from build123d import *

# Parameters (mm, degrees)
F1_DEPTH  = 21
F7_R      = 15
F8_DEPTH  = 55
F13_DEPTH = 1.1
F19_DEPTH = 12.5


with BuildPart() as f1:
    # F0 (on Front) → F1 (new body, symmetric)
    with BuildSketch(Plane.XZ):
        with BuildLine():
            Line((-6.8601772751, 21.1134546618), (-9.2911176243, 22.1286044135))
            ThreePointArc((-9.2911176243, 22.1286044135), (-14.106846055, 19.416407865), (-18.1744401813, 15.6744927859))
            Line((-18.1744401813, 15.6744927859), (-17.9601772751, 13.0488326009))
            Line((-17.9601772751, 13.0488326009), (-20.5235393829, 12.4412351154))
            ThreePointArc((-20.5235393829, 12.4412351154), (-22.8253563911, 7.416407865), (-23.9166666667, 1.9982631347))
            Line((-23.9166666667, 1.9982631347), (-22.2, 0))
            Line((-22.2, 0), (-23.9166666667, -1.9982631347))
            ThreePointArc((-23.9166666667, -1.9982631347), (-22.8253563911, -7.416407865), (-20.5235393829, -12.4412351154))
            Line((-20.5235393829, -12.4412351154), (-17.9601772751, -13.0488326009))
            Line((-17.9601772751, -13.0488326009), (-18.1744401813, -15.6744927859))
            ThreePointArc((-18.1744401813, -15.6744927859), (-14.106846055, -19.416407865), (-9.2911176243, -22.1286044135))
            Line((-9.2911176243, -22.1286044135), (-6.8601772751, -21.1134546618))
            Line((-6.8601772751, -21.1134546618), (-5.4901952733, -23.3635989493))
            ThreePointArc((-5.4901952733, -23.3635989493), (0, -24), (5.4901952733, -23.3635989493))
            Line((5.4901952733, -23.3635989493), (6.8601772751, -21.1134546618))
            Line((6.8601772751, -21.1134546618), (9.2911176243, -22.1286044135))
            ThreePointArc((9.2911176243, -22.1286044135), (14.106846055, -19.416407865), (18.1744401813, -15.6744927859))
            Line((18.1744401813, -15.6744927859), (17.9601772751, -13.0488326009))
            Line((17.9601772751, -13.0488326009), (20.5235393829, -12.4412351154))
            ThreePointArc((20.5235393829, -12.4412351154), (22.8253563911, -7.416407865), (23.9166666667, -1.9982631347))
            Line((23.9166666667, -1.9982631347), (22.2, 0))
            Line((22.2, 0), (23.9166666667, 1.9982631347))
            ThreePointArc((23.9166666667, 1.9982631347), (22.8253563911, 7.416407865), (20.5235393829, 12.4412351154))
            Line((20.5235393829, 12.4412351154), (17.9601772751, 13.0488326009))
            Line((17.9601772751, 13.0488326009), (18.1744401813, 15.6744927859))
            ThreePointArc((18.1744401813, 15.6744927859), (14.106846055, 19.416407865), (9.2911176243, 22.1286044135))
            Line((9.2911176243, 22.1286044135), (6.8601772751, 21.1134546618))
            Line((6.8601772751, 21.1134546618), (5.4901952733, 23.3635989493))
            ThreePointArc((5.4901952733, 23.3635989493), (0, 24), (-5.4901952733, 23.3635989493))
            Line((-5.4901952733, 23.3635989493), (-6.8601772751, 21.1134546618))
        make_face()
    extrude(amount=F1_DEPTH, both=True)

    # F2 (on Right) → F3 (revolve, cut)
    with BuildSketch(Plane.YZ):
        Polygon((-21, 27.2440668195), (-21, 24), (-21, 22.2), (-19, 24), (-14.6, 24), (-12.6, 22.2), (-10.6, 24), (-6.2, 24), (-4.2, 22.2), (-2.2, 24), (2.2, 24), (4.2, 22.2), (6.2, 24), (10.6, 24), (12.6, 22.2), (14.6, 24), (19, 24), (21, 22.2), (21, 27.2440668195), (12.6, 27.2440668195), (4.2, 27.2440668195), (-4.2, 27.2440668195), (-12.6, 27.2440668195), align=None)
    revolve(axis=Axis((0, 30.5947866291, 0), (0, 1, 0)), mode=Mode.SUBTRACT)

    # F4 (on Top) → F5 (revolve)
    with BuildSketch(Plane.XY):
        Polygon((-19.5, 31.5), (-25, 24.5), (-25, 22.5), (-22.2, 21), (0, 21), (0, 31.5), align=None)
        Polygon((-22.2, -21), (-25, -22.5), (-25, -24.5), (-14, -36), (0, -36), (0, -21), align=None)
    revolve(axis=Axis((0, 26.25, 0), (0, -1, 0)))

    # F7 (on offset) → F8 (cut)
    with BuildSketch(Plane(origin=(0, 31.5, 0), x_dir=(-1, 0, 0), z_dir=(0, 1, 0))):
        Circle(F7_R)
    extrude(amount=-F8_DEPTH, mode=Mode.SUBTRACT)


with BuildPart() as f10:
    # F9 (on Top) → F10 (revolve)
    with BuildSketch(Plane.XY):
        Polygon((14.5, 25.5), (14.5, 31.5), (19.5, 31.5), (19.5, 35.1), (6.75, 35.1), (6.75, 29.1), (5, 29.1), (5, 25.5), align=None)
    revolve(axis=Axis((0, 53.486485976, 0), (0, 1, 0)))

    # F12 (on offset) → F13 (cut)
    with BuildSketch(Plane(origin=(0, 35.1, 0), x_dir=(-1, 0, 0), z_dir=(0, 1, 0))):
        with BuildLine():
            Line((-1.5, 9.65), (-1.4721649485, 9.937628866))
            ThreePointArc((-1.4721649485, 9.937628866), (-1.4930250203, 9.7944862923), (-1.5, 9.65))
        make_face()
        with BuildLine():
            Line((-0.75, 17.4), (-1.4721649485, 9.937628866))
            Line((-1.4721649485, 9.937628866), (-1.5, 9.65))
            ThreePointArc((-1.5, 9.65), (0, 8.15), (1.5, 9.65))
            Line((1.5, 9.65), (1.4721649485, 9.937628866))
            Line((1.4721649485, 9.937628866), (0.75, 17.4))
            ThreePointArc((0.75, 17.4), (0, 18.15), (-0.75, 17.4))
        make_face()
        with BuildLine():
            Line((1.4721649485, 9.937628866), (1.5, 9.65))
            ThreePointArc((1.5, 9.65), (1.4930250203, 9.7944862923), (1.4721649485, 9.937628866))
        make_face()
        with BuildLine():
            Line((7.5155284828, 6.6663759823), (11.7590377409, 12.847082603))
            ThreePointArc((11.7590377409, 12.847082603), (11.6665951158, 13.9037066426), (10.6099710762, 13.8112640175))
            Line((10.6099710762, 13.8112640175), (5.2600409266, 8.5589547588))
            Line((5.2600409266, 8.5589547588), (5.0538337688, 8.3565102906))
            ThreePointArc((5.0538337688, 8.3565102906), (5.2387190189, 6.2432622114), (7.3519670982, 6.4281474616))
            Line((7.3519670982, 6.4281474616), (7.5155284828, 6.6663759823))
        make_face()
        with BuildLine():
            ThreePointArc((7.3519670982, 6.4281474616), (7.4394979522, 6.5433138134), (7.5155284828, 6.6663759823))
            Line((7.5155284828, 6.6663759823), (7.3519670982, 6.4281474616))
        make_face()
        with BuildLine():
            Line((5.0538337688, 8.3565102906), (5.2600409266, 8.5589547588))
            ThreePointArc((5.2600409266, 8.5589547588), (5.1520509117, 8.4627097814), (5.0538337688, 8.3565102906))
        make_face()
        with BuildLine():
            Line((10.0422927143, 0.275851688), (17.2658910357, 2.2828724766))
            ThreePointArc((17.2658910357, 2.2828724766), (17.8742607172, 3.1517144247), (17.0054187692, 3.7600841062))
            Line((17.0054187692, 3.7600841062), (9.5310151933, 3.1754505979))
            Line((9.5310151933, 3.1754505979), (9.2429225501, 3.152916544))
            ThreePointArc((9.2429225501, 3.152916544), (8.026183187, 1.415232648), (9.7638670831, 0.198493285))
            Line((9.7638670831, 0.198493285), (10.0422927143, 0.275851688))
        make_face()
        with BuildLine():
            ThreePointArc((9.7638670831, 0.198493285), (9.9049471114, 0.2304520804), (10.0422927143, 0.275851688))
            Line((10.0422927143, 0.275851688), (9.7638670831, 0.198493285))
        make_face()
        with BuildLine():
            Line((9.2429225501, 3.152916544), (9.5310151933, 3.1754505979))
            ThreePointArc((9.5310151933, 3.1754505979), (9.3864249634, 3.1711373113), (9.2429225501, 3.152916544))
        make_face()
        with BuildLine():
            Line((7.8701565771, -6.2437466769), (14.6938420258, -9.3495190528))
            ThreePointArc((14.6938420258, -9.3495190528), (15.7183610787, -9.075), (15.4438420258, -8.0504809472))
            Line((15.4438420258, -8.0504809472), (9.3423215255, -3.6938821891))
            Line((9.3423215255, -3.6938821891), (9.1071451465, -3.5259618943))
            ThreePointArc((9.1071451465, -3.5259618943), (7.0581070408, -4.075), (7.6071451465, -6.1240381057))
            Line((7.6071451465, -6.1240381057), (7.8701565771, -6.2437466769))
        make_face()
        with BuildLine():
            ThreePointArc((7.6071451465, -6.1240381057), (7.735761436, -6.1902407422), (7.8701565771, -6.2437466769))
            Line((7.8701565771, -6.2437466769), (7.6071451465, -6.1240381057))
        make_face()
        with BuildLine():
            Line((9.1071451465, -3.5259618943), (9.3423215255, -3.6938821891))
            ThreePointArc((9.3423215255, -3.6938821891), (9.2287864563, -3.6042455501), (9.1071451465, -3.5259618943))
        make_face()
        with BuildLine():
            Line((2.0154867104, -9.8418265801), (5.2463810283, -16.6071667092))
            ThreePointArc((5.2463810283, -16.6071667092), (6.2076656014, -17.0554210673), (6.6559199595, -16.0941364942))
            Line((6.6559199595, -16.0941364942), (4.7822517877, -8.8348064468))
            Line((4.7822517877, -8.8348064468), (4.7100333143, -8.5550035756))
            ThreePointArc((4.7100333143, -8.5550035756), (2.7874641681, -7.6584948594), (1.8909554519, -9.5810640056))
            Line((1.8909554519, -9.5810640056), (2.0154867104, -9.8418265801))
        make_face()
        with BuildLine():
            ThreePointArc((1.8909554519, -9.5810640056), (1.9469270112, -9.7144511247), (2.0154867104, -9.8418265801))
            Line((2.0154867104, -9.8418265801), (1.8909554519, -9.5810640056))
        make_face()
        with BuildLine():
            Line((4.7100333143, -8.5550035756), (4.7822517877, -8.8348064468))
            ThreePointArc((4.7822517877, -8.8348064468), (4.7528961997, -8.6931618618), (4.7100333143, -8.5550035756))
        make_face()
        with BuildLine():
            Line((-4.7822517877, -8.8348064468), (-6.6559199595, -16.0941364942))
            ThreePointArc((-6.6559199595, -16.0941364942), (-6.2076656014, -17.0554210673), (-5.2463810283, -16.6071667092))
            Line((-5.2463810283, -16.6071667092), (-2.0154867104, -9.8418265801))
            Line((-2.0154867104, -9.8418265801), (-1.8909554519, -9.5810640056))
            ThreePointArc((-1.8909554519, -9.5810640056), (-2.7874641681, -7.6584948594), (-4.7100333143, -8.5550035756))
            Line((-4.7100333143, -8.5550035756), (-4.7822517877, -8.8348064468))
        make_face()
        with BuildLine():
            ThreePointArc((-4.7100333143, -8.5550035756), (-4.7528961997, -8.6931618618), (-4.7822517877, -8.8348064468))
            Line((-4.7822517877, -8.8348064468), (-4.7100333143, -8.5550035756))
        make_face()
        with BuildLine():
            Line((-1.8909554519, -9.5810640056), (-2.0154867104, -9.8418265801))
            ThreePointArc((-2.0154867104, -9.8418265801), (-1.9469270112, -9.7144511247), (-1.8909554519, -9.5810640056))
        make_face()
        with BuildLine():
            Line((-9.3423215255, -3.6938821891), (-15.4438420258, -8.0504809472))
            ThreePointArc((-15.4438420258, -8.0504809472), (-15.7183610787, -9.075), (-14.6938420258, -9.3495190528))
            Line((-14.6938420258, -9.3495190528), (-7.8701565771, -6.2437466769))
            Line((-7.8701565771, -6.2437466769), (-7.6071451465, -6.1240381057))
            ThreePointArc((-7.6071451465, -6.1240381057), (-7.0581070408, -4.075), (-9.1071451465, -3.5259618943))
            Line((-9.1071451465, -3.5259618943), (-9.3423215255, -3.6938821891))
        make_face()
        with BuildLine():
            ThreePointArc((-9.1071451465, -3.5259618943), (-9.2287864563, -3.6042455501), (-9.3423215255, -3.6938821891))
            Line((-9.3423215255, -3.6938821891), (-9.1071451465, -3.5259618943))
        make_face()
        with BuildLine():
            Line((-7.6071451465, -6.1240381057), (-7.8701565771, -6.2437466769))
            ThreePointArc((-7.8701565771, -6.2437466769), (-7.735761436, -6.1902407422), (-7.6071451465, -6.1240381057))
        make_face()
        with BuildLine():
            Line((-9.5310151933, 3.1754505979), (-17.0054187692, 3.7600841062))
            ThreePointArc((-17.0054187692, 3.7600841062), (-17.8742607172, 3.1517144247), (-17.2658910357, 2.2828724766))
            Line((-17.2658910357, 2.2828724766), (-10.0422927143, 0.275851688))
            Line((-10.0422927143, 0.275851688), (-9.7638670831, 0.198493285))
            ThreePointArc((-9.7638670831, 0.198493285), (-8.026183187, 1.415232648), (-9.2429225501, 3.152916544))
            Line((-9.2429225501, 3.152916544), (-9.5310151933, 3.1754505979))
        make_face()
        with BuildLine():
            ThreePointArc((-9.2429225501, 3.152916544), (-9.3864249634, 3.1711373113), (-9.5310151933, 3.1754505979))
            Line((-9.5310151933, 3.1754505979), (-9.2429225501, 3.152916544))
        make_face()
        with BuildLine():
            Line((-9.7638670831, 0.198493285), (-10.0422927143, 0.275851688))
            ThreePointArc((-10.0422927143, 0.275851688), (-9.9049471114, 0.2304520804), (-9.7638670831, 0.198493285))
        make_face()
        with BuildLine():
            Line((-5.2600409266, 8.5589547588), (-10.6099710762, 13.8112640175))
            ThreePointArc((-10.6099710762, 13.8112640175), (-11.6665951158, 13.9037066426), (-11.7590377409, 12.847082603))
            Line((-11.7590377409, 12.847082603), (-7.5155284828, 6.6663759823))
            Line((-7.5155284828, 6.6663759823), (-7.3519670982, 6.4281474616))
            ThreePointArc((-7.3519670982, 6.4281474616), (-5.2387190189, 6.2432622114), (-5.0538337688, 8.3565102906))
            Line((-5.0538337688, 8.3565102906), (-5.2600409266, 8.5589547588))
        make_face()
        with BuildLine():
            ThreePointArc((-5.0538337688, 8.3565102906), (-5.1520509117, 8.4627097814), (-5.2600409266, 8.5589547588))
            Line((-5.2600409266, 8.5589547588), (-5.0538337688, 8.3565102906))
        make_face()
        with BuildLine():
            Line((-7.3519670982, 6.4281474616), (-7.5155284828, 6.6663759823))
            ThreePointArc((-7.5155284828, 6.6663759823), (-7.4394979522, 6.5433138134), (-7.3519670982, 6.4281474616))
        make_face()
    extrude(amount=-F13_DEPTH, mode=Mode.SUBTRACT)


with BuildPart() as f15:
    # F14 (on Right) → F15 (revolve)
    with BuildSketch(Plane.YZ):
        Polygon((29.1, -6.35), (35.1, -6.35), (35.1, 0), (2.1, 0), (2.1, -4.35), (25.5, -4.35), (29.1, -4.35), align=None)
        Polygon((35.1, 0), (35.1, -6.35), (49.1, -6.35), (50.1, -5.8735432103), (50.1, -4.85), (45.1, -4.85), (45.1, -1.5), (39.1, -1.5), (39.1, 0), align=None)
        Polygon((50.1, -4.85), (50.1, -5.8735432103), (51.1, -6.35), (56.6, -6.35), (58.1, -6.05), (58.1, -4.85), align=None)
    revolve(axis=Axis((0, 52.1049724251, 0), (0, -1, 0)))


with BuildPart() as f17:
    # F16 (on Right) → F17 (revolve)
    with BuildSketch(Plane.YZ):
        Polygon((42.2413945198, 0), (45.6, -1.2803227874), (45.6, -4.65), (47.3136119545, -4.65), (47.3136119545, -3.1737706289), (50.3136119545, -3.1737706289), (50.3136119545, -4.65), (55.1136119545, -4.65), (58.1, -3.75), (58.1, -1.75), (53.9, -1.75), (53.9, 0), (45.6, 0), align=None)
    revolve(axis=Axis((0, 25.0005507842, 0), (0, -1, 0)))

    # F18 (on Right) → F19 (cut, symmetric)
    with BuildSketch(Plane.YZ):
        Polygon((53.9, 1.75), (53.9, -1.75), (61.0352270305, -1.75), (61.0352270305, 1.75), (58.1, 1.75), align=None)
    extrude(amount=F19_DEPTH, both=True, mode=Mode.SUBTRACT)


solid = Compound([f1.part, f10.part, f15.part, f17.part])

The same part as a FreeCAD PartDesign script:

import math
import FreeCAD as App
import Part
import Sketcher

V = App.Vector


def add_polygon(sketch, points):
    """Adds a closed chain of lines whose ends are joined by coincident constraints."""
    first, n = sketch.GeometryCount, len(points)
    for a, b in zip(points, points[1:] + points[:1]):
        sketch.addGeometry(Part.LineSegment(App.Vector(*a, 0), App.Vector(*b, 0)), False)
    for i in range(n):
        sketch.addConstraint(Sketcher.Constraint("Coincident", first + i, 2, first + (i + 1) % n, 1))

doc = App.newDocument("Part")
body = doc.addObject("PartDesign::Body", "Body")

# Sketch on XZ plane
sketch1 = doc.addObject("Sketcher::SketchObject", "Sketch")
body.addObject(sketch1)
sketch1.AttachmentSupport = (doc.XZ_Plane, [""])
sketch1.MapMode = "FlatFace"
sketch1.addGeometry([
    Part.LineSegment(V(-6.860177, 21.113455, 0), V(-9.291118, 22.128604, 0)),  # 0
    Part.ArcOfCircle(Part.Circle(V(0, 0, 0), V(0, 0, 1), 24), math.radians(112.776031), math.radians(139.223969)),  # 1
    Part.LineSegment(V(-18.17444, 15.674493, 0), V(-17.960177, 13.048833, 0)),  # 2
    Part.LineSegment(V(-17.960177, 13.048833, 0), V(-20.523539, 12.441235, 0)),  # 3
    Part.ArcOfCircle(Part.Circle(V(0, 0, 0), V(0, 0, 1), 24), math.radians(148.776031), math.radians(175.223969)),  # 4
    Part.LineSegment(V(-23.916667, 1.998263, 0), V(-22.2, 0, 0)),  # 5
    Part.LineSegment(V(-22.2, 0, 0), V(-23.916667, -1.998263, 0)),  # 6
    Part.ArcOfCircle(Part.Circle(V(0, 0, 0), V(0, 0, 1), 24), math.radians(-175.223969), math.radians(-148.776031)),  # 7
    Part.LineSegment(V(-20.523539, -12.441235, 0), V(-17.960177, -13.048833, 0)),  # 8
    Part.LineSegment(V(-17.960177, -13.048833, 0), V(-18.17444, -15.674493, 0)),  # 9
    Part.ArcOfCircle(Part.Circle(V(0, 0, 0), V(0, 0, 1), 24), math.radians(-139.223969), math.radians(-112.776031)),  # 10
    Part.LineSegment(V(-9.291118, -22.128604, 0), V(-6.860177, -21.113455, 0)),  # 11
    Part.LineSegment(V(-6.860177, -21.113455, 0), V(-5.490195, -23.363599, 0)),  # 12
    Part.ArcOfCircle(Part.Circle(V(0, 0, 0), V(0, 0, 1), 24), math.radians(-103.223969), math.radians(-76.776031)),  # 13
    Part.LineSegment(V(5.490195, -23.363599, 0), V(6.860177, -21.113455, 0)),  # 14
    Part.LineSegment(V(6.860177, -21.113455, 0), V(9.291118, -22.128604, 0)),  # 15
    Part.ArcOfCircle(Part.Circle(V(0, 0, 0), V(0, 0, 1), 24), math.radians(-67.223969), math.radians(-40.776031)),  # 16
    Part.LineSegment(V(18.17444, -15.674493, 0), V(17.960177, -13.048833, 0)),  # 17
    Part.LineSegment(V(17.960177, -13.048833, 0), V(20.523539, -12.441235, 0)),  # 18
    Part.ArcOfCircle(Part.Circle(V(0, 0, 0), V(0, 0, 1), 24), math.radians(-31.223969), math.radians(-4.776031)),  # 19
    Part.LineSegment(V(23.916667, -1.998263, 0), V(22.2, 0, 0)),  # 20
    Part.LineSegment(V(22.2, 0, 0), V(23.916667, 1.998263, 0)),  # 21
    Part.ArcOfCircle(Part.Circle(V(0, 0, 0), V(0, 0, 1), 24), math.radians(4.776031), math.radians(31.223969)),  # 22
    Part.LineSegment(V(20.523539, 12.441235, 0), V(17.960177, 13.048833, 0)),  # 23
    Part.LineSegment(V(17.960177, 13.048833, 0), V(18.17444, 15.674493, 0)),  # 24
    Part.ArcOfCircle(Part.Circle(V(0, 0, 0), V(0, 0, 1), 24), math.radians(40.776031), math.radians(67.223969)),  # 25
    Part.LineSegment(V(9.291118, 22.128604, 0), V(6.860177, 21.113455, 0)),  # 26
    Part.LineSegment(V(6.860177, 21.113455, 0), V(5.490195, 23.363599, 0)),  # 27
    Part.ArcOfCircle(Part.Circle(V(0, 0, 0), V(0, 0, 1), 24), math.radians(76.776031), math.radians(103.223969)),  # 28
    Part.LineSegment(V(-5.490195, 23.363599, 0), V(-6.860177, 21.113455, 0)),  # 29
], False)
sketch1.addConstraint([
    Sketcher.Constraint("Coincident", 0, 2, 1, 1),
    Sketcher.Constraint("Coincident", 1, 2, 2, 1),
    Sketcher.Constraint("Coincident", 2, 2, 3, 1),
    Sketcher.Constraint("Coincident", 3, 2, 4, 1),
    Sketcher.Constraint("Coincident", 4, 2, 5, 1),
    Sketcher.Constraint("Coincident", 5, 2, 6, 1),
    Sketcher.Constraint("Coincident", 6, 2, 7, 1),
    Sketcher.Constraint("Coincident", 7, 2, 8, 1),
    Sketcher.Constraint("Coincident", 8, 2, 9, 1),
    Sketcher.Constraint("Coincident", 9, 2, 10, 1),
    Sketcher.Constraint("Coincident", 10, 2, 11, 1),
    Sketcher.Constraint("Coincident", 11, 2, 12, 1),
    Sketcher.Constraint("Coincident", 12, 2, 13, 1),
    Sketcher.Constraint("Coincident", 13, 2, 14, 1),
    Sketcher.Constraint("Coincident", 14, 2, 15, 1),
    Sketcher.Constraint("Coincident", 15, 2, 16, 1),
    Sketcher.Constraint("Coincident", 16, 2, 17, 1),
    Sketcher.Constraint("Coincident", 17, 2, 18, 1),
    Sketcher.Constraint("Coincident", 18, 2, 19, 1),
    Sketcher.Constraint("Coincident", 19, 2, 20, 1),
    Sketcher.Constraint("Coincident", 20, 2, 21, 1),
    Sketcher.Constraint("Coincident", 21, 2, 22, 1),
    Sketcher.Constraint("Coincident", 22, 2, 23, 1),
    Sketcher.Constraint("Coincident", 23, 2, 24, 1),
    Sketcher.Constraint("Coincident", 24, 2, 25, 1),
    Sketcher.Constraint("Coincident", 25, 2, 26, 1),
    Sketcher.Constraint("Coincident", 26, 2, 27, 1),
    Sketcher.Constraint("Coincident", 27, 2, 28, 1),
    Sketcher.Constraint("Coincident", 28, 2, 29, 1),
    Sketcher.Constraint("Coincident", 29, 2, 0, 1),
    Sketcher.Constraint("Coincident", 1, 3, -1, 1),
    Sketcher.Constraint("Coincident", 4, 3, -1, 1),
    Sketcher.Constraint("Coincident", 7, 3, -1, 1),
    Sketcher.Constraint("Coincident", 10, 3, -1, 1),
    Sketcher.Constraint("Coincident", 13, 3, -1, 1),
    Sketcher.Constraint("Coincident", 16, 3, -1, 1),
    Sketcher.Constraint("Coincident", 19, 3, -1, 1),
    Sketcher.Constraint("Coincident", 22, 3, -1, 1),
    Sketcher.Constraint("Coincident", 25, 3, -1, 1),
    Sketcher.Constraint("Coincident", 28, 3, -1, 1),
    Sketcher.Constraint("Equal", 1, 4),
    Sketcher.Constraint("Equal", 4, 7),
    Sketcher.Constraint("Equal", 7, 10),
    Sketcher.Constraint("Equal", 10, 13),
    Sketcher.Constraint("Equal", 13, 16),
    Sketcher.Constraint("Equal", 16, 19),
    Sketcher.Constraint("Equal", 19, 22),
    Sketcher.Constraint("Equal", 22, 25),
    Sketcher.Constraint("Equal", 25, 28),
    Sketcher.Constraint("Symmetric", 2, 2, 17, 2, -1, 1),
    Sketcher.Constraint("Symmetric", 5, 2, 20, 2, -1, 1),
    Sketcher.Constraint("Symmetric", 8, 2, 23, 2, -1, 1),
    Sketcher.Constraint("Symmetric", 11, 2, 26, 2, -1, 1),
    Sketcher.Constraint("Symmetric", 14, 2, 29, 2, -1, 1),
    Sketcher.Constraint("Symmetric", 11, 2, 14, 2, -2),
    Sketcher.Constraint("Symmetric", 8, 2, 17, 2, -2),
    Sketcher.Constraint("PointOnObject", 5, 2, -1),
    Sketcher.Constraint("Parallel", 0, 15),
    Sketcher.Constraint("Parallel", 2, 17),
    Sketcher.Constraint("Parallel", 3, 18),
    Sketcher.Constraint("Parallel", 5, 20),
    Sketcher.Constraint("Parallel", 6, 21),
    Sketcher.Constraint("Parallel", 8, 23),
    Sketcher.Constraint("Parallel", 9, 24),
    Sketcher.Constraint("Parallel", 11, 26),
    Sketcher.Constraint("Parallel", 12, 27),
    Sketcher.Constraint("Parallel", 14, 29),
    Sketcher.Constraint("Horizontal", 12, 2, 13, 2),
    Sketcher.Constraint("Horizontal", 10, 2, 15, 2),
    Sketcher.Constraint("Horizontal", 9, 2, 16, 2),
    Sketcher.Constraint("Horizontal", 7, 2, 18, 2),
    Sketcher.Constraint("Horizontal", 6, 2, 19, 2),
    Sketcher.Constraint("Equal", 0, 2),
    Sketcher.Constraint("Equal", 2, 3),
    Sketcher.Constraint("Equal", 3, 5),
    Sketcher.Constraint("Equal", 11, 12),
    Sketcher.Constraint("Radius", 1, 24.0),
    Sketcher.Constraint("DistanceX", 5, 2, -1, 1, 22.2),
    Sketcher.Constraint("DistanceX", 8, 2, 11, 2, 11.1),
    Sketcher.Constraint("DistanceY", 12, 2, -1, 1, 23.363599),
    Sketcher.Constraint("DistanceX", 3, 2, 1, 2, 2.349099),
    Sketcher.Constraint("DistanceY", 6, 2, 3, 2, 14.439498),
    Sketcher.Constraint("DistanceX", 1, 2, -1, 1, 18.17444),
])
pad1 = doc.addObject("PartDesign::Pad", "Pad")
body.addObject(pad1)
pad1.Profile = sketch1
pad1.Length = 42
pad1.Midplane = True

# Sketch on YZ plane
sketch2 = doc.addObject("Sketcher::SketchObject", "Sketch001")
body.addObject(sketch2)
sketch2.AttachmentSupport = (doc.YZ_Plane, [""])
sketch2.MapMode = "FlatFace"
add_polygon(sketch2, [(-21, 27.244067), (-21, 22.2), (-19, 24), (-14.6, 24), (-12.6, 22.2), (-10.6, 24), (-6.2, 24), (-4.2, 22.2), (-2.2, 24), (2.2, 24), (4.2, 22.2), (6.2, 24), (10.6, 24), (12.6, 22.2), (14.6, 24), (19, 24), (21, 22.2), (21, 27.244067)])  # lines 0-17
sketch2.addConstraint([
    Sketcher.Constraint("Vertical", 0),
    Sketcher.Constraint("Horizontal", 2),
    Sketcher.Constraint("Horizontal", 5),
    Sketcher.Constraint("Horizontal", 8),
    Sketcher.Constraint("Horizontal", 11),
    Sketcher.Constraint("Horizontal", 14),
    Sketcher.Constraint("Vertical", 16),
    Sketcher.Constraint("Horizontal", 17),
    Sketcher.Constraint("Symmetric", 6, 2, 9, 2, -2),
    Sketcher.Constraint("Symmetric", 5, 2, 10, 2, -2),
    Sketcher.Constraint("Symmetric", 3, 2, 12, 2, -2),
    Sketcher.Constraint("Symmetric", 2, 2, 13, 2, -2),
    Sketcher.Constraint("Symmetric", 0, 2, 15, 2, -2),
    Sketcher.Constraint("Parallel", 1, 4),
    Sketcher.Constraint("Parallel", 3, 6),
    Sketcher.Constraint("Parallel", 4, 7),
    Sketcher.Constraint("Parallel", 6, 9),
    Sketcher.Constraint("Parallel", 7, 10),
    Sketcher.Constraint("Parallel", 9, 12),
    Sketcher.Constraint("Parallel", 12, 15),
    Sketcher.Constraint("Horizontal", 0, 2, 3, 2),
    Sketcher.Constraint("Horizontal", 2, 2, 4, 2),
    Sketcher.Constraint("Horizontal", 3, 2, 6, 2),
    Sketcher.Constraint("Horizontal", 5, 2, 7, 2),
    Sketcher.Constraint("Equal", 2, 5),
    Sketcher.Constraint("Equal", 5, 8),
    Sketcher.Constraint("DistanceX", 17, 2, 17, 1, 42.0),
    Sketcher.Constraint("DistanceX", 2, 1, 2, 2, 4.4),
    Sketcher.Constraint("DistanceY", -1, 1, 1, 2, 24.0),
    Sketcher.Constraint("DistanceY", -1, 1, 0, 2, 22.2),
    Sketcher.Constraint("DistanceY", 0, 2, 0, 1, 5.044067),
])
groove = doc.addObject("PartDesign::Groove", "Groove")
body.addObject(groove)
groove.Profile = sketch2
groove.ReferenceAxis = (sketch2, ["H_Axis"])
groove.Angle = 360

# Sketch on XY plane
sketch3 = doc.addObject("Sketcher::SketchObject", "Sketch002")
body.addObject(sketch3)
sketch3.AttachmentSupport = (doc.XY_Plane, [""])
sketch3.MapMode = "FlatFace"
add_polygon(sketch3, [(-19.5, 31.5), (-25, 24.5), (-25, 22.5), (-22.2, 21), (0, 21), (0, 31.5)])  # lines 0-5
add_polygon(sketch3, [(-22.2, -21), (-25, -22.5), (-25, -24.5), (-14, -36), (0, -36), (0, -21)])  # lines 6-11
sketch3.addConstraint([
    Sketcher.Constraint("Vertical", 1),
    Sketcher.Constraint("Horizontal", 3),
    Sketcher.Constraint("Vertical", 4),
    Sketcher.Constraint("Horizontal", 5),
    Sketcher.Constraint("Vertical", 7),
    Sketcher.Constraint("Horizontal", 9),
    Sketcher.Constraint("Vertical", 10),
    Sketcher.Constraint("Horizontal", 11),
    Sketcher.Constraint("Symmetric", 3, 2, 10, 2, -1, 1),
    Sketcher.Constraint("Symmetric", 1, 2, 6, 2, -1),
    Sketcher.Constraint("PointOnObject", 3, 2, -2),
    Sketcher.Constraint("Vertical", 2, 2, 11, 2),
    Sketcher.Constraint("Equal", 1, 7),
    Sketcher.Constraint("DistanceX", 9, 1, 9, 2, 14.0),
    Sketcher.Constraint("DistanceY", 1, 2, 1, 1, 2.0),
    Sketcher.Constraint("DistanceY", 10, 1, 10, 2, 15.0),
    Sketcher.Constraint("DistanceX", 3, 1, 3, 2, 22.2),
    Sketcher.Constraint("DistanceX", 5, 2, 5, 1, 19.5),
    Sketcher.Constraint("DistanceY", 4, 1, 4, 2, 10.5),
    Sketcher.Constraint("DistanceX", 0, 2, -1, 1, 25.0),
    Sketcher.Constraint("DistanceY", -1, 1, 2, 2, 21.0),
    Sketcher.Constraint("DistanceY", 0, 2, 4, 2, 7.0),
])
revolution = doc.addObject("PartDesign::Revolution", "Revolution")
body.addObject(revolution)
revolution.Profile = sketch3
revolution.ReferenceAxis = (sketch3, ["V_Axis"])
revolution.Angle = 360

# Sketch on XZ plane
sketch4 = doc.addObject("Sketcher::SketchObject", "Sketch003")
body.addObject(sketch4)
sketch4.AttachmentSupport = (doc.XZ_Plane, [""])
sketch4.MapMode = "FlatFace"
sketch4.AttachmentOffset = App.Placement(V(0, 0, -31.5), App.Rotation())
sketch4.addGeometry(Part.Circle(V(0, 0, 0), V(0, 0, 1), 15), False)
sketch4.addConstraint([
    Sketcher.Constraint("Coincident", 0, 3, -1, 1),
    Sketcher.Constraint("Diameter", 0, 30.0),
])
pocket1 = doc.addObject("PartDesign::Pocket", "Pocket")
body.addObject(pocket1)
pocket1.Profile = sketch4
pocket1.Length = 55
pocket1.Reversed = True
body2 = doc.addObject("PartDesign::Body", "Body001")

# Sketch on XY plane
sketch5 = doc.addObject("Sketcher::SketchObject", "Sketch004")
body2.addObject(sketch5)
sketch5.AttachmentSupport = (doc.getObject("XY_Plane001"), [""])
sketch5.MapMode = "FlatFace"
add_polygon(sketch5, [(14.5, 25.5), (14.5, 31.5), (19.5, 31.5), (19.5, 35.1), (6.75, 35.1), (6.75, 29.1), (5, 29.1), (5, 25.5)])  # lines 0-7
sketch5.addConstraint([
    Sketcher.Constraint("Vertical", 0),
    Sketcher.Constraint("Horizontal", 1),
    Sketcher.Constraint("Vertical", 2),
    Sketcher.Constraint("Horizontal", 3),
    Sketcher.Constraint("Vertical", 4),
    Sketcher.Constraint("Horizontal", 5),
    Sketcher.Constraint("Vertical", 6),
    Sketcher.Constraint("Horizontal", 7),
    Sketcher.Constraint("Equal", 0, 4),
    Sketcher.Constraint("DistanceX", 1, 1, 1, 2, 5.0),
    Sketcher.Constraint("DistanceY", 0, 1, 0, 2, 6.0),
    Sketcher.Constraint("DistanceX", 7, 1, 7, 2, 9.5),
    Sketcher.Constraint("DistanceY", 2, 1, 2, 2, 3.6),
    Sketcher.Constraint("DistanceX", -1, 1, 5, 2, 5.0),
    Sketcher.Constraint("DistanceX", 3, 2, 3, 1, 12.75),
    Sketcher.Constraint("DistanceY", -1, 1, 0, 2, 31.5),
])
revolution2 = doc.addObject("PartDesign::Revolution", "Revolution001")
body2.addObject(revolution2)
revolution2.Profile = sketch5
revolution2.ReferenceAxis = (sketch5, ["V_Axis"])
revolution2.Angle = 360

# Sketch on XZ plane
sketch6 = doc.addObject("Sketcher::SketchObject", "Sketch005")
body2.addObject(sketch6)
sketch6.AttachmentSupport = (doc.getObject("XZ_Plane001"), [""])
sketch6.MapMode = "FlatFace"
sketch6.AttachmentOffset = App.Placement(V(0, 0, -35.1), App.Rotation())
sketch6.addGeometry([
    Part.ArcOfCircle(Part.Circle(V(0, 9.65, 0), V(0, 0, 1), 1.5), math.radians(0), math.radians(11.05508)),  # 0
    Part.ArcOfCircle(Part.Circle(V(0, 9.65, 0), V(0, 0, 1), 1.5), math.radians(180), math.radians(360)),  # 1
    Part.ArcOfCircle(Part.Circle(V(0, 9.65, 0), V(0, 0, 1), 1.5), math.radians(168.94492), math.radians(180)),  # 2
    Part.LineSegment(V(-1.472165, 9.937629, 0), V(-0.75, 17.4, 0)),  # 3
    Part.ArcOfCircle(Part.Circle(V(0, 17.4, 0), V(0, 0, 1), 0.75), math.radians(0), math.radians(180)),  # 4
    Part.LineSegment(V(0.75, 17.4, 0), V(1.472165, 9.937629, 0)),  # 5
    Part.LineSegment(V(-7.515528, 6.666376, 0), V(-11.759038, 12.847083, 0)),  # 6
    Part.ArcOfCircle(Part.Circle(V(-11.184504, 13.329173, 0), V(0, 0, 1), 0.75), math.radians(40), math.radians(220)),  # 7
    Part.LineSegment(V(-10.609971, 13.811264, 0), V(-5.260041, 8.558955, 0)),  # 8
    Part.ArcOfCircle(Part.Circle(V(-6.2029, 7.392329, 0), V(0, 0, 1), 1.5), math.radians(40), math.radians(51.05508)),  # 9
    Part.ArcOfCircle(Part.Circle(V(-6.2029, 7.392329, 0), V(0, 0, 1), 1.5), math.radians(-140), math.radians(40)),  # 10
    Part.ArcOfCircle(Part.Circle(V(-6.2029, 7.392329, 0), V(0, 0, 1), 1.5), math.radians(-151.05508), math.radians(-140)),  # 11
    Part.LineSegment(V(-10.042293, 0.275852, 0), V(-17.265891, 2.282872, 0)),  # 12
    Part.ArcOfCircle(Part.Circle(V(-17.135655, 3.021478, 0), V(0, 0, 1), 0.75), math.radians(80), math.radians(260)),  # 13
    Part.LineSegment(V(-17.005419, 3.760084, 0), V(-9.531015, 3.175451, 0)),  # 14
    Part.ArcOfCircle(Part.Circle(V(-9.503395, 1.675705, 0), V(0, 0, 1), 1.5), math.radians(80), math.radians(91.05508)),  # 15
    Part.ArcOfCircle(Part.Circle(V(-9.503395, 1.675705, 0), V(0, 0, 1), 1.5), math.radians(-100), math.radians(80)),  # 16
    Part.ArcOfCircle(Part.Circle(V(-9.503395, 1.675705, 0), V(0, 0, 1), 1.5), math.radians(-111.05508), math.radians(-100)),  # 17
    Part.LineSegment(V(-7.870157, -6.243747, 0), V(-14.693842, -9.349519, 0)),  # 18
    Part.ArcOfCircle(Part.Circle(V(-15.068842, -8.7, 0), V(0, 0, 1), 0.75), math.radians(120), math.radians(300)),  # 19
    Part.LineSegment(V(-15.443842, -8.050481, 0), V(-9.342322, -3.693882, 0)),  # 20
    Part.ArcOfCircle(Part.Circle(V(-8.357145, -4.825, 0), V(0, 0, 1), 1.5), math.radians(120), math.radians(131.05508)),  # 21
    Part.ArcOfCircle(Part.Circle(V(-8.357145, -4.825, 0), V(0, 0, 1), 1.5), math.radians(-60), math.radians(120)),  # 22
    Part.ArcOfCircle(Part.Circle(V(-8.357145, -4.825, 0), V(0, 0, 1), 1.5), math.radians(-71.05508), math.radians(-60)),  # 23
    Part.LineSegment(V(-2.015487, -9.841827, 0), V(-5.246381, -16.607167, 0)),  # 24
    Part.ArcOfCircle(Part.Circle(V(-5.95115, -16.350652, 0), V(0, 0, 1), 0.75), math.radians(160), math.radians(340)),  # 25
    Part.LineSegment(V(-6.65592, -16.094136, 0), V(-4.782252, -8.834806, 0)),  # 26
    Part.ArcOfCircle(Part.Circle(V(-3.300494, -9.068034, 0), V(0, 0, 1), 1.5), math.radians(160), math.radians(171.05508)),  # 27
    Part.ArcOfCircle(Part.Circle(V(-3.300494, -9.068034, 0), V(0, 0, 1), 1.5), math.radians(-20), math.radians(160)),  # 28
    Part.ArcOfCircle(Part.Circle(V(-3.300494, -9.068034, 0), V(0, 0, 1), 1.5), math.radians(-31.05508), math.radians(-20)),  # 29
    Part.LineSegment(V(4.782252, -8.834806, 0), V(6.65592, -16.094136, 0)),  # 30
    Part.ArcOfCircle(Part.Circle(V(5.95115, -16.350652, 0), V(0, 0, 1), 0.75), math.radians(-160), math.radians(20)),  # 31
    Part.LineSegment(V(5.246381, -16.607167, 0), V(2.015487, -9.841827, 0)),  # 32
    Part.ArcOfCircle(Part.Circle(V(3.300494, -9.068034, 0), V(0, 0, 1), 1.5), math.radians(-160), math.radians(-148.94492)),  # 33
    Part.ArcOfCircle(Part.Circle(V(3.300494, -9.068034, 0), V(0, 0, 1), 1.5), math.radians(20), math.radians(200)),  # 34
    Part.ArcOfCircle(Part.Circle(V(3.300494, -9.068034, 0), V(0, 0, 1), 1.5), math.radians(8.94492), math.radians(20)),  # 35
    Part.LineSegment(V(9.342322, -3.693882, 0), V(15.443842, -8.050481, 0)),  # 36
    Part.ArcOfCircle(Part.Circle(V(15.068842, -8.7, 0), V(0, 0, 1), 0.75), math.radians(-120), math.radians(60)),  # 37
    Part.LineSegment(V(14.693842, -9.349519, 0), V(7.870157, -6.243747, 0)),  # 38
    Part.ArcOfCircle(Part.Circle(V(8.357145, -4.825, 0), V(0, 0, 1), 1.5), math.radians(-120), math.radians(-108.94492)),  # 39
    Part.ArcOfCircle(Part.Circle(V(8.357145, -4.825, 0), V(0, 0, 1), 1.5), math.radians(60), math.radians(240)),  # 40
    Part.ArcOfCircle(Part.Circle(V(8.357145, -4.825, 0), V(0, 0, 1), 1.5), math.radians(48.94492), math.radians(60)),  # 41
    Part.LineSegment(V(9.531015, 3.175451, 0), V(17.005419, 3.760084, 0)),  # 42
    Part.ArcOfCircle(Part.Circle(V(17.135655, 3.021478, 0), V(0, 0, 1), 0.75), math.radians(-80), math.radians(100)),  # 43
    Part.LineSegment(V(17.265891, 2.282872, 0), V(10.042293, 0.275852, 0)),  # 44
    Part.ArcOfCircle(Part.Circle(V(9.503395, 1.675705, 0), V(0, 0, 1), 1.5), math.radians(-80), math.radians(-68.94492)),  # 45
    Part.ArcOfCircle(Part.Circle(V(9.503395, 1.675705, 0), V(0, 0, 1), 1.5), math.radians(100), math.radians(280)),  # 46
    Part.ArcOfCircle(Part.Circle(V(9.503395, 1.675705, 0), V(0, 0, 1), 1.5), math.radians(88.94492), math.radians(100)),  # 47
    Part.LineSegment(V(5.260041, 8.558955, 0), V(10.609971, 13.811264, 0)),  # 48
    Part.ArcOfCircle(Part.Circle(V(11.184504, 13.329173, 0), V(0, 0, 1), 0.75), math.radians(-40), math.radians(140)),  # 49
    Part.LineSegment(V(11.759038, 12.847083, 0), V(7.515528, 6.666376, 0)),  # 50
    Part.ArcOfCircle(Part.Circle(V(6.2029, 7.392329, 0), V(0, 0, 1), 1.5), math.radians(-40), math.radians(-28.94492)),  # 51
    Part.ArcOfCircle(Part.Circle(V(6.2029, 7.392329, 0), V(0, 0, 1), 1.5), math.radians(140), math.radians(320)),  # 52
    Part.ArcOfCircle(Part.Circle(V(6.2029, 7.392329, 0), V(0, 0, 1), 1.5), math.radians(128.94492), math.radians(140)),  # 53
], False)
sketch6.addConstraint([
    Sketcher.Constraint("Tangent", 0, 1, 1, 2),
    Sketcher.Constraint("Tangent", 1, 1, 2, 2),
    Sketcher.Constraint("Coincident", 2, 1, 3, 1),
    Sketcher.Constraint("Coincident", 3, 2, 4, 2),
    Sketcher.Constraint("Coincident", 4, 1, 5, 1),
    Sketcher.Constraint("Coincident", 5, 2, 0, 2),
    Sketcher.Constraint("Coincident", 6, 2, 7, 2),
    Sketcher.Constraint("Coincident", 7, 1, 8, 1),
    Sketcher.Constraint("Coincident", 8, 2, 9, 2),
    Sketcher.Constraint("Tangent", 9, 1, 10, 2),
    Sketcher.Constraint("Tangent", 10, 1, 11, 2),
    Sketcher.Constraint("Coincident", 11, 1, 6, 1),
    Sketcher.Constraint("Coincident", 12, 2, 13, 2),
    Sketcher.Constraint("Coincident", 13, 1, 14, 1),
    Sketcher.Constraint("Coincident", 14, 2, 15, 2),
    Sketcher.Constraint("Tangent", 15, 1, 16, 2),
    Sketcher.Constraint("Tangent", 16, 1, 17, 2),
    Sketcher.Constraint("Coincident", 17, 1, 12, 1),
    Sketcher.Constraint("Coincident", 18, 2, 19, 2),
    Sketcher.Constraint("Coincident", 19, 1, 20, 1),
    Sketcher.Constraint("Coincident", 20, 2, 21, 2),
    Sketcher.Constraint("Tangent", 21, 1, 22, 2),
    Sketcher.Constraint("Tangent", 22, 1, 23, 2),
    Sketcher.Constraint("Coincident", 23, 1, 18, 1),
    Sketcher.Constraint("Coincident", 24, 2, 25, 2),
    Sketcher.Constraint("Coincident", 25, 1, 26, 1),
    Sketcher.Constraint("Coincident", 26, 2, 27, 2),
    Sketcher.Constraint("Tangent", 27, 1, 28, 2),
    Sketcher.Constraint("Tangent", 28, 1, 29, 2),
    Sketcher.Constraint("Coincident", 29, 1, 24, 1),
    Sketcher.Constraint("Coincident", 30, 2, 31, 2),
    Sketcher.Constraint("Coincident", 31, 1, 32, 1),
    Sketcher.Constraint("Coincident", 32, 2, 33, 2),
    Sketcher.Constraint("Tangent", 33, 1, 34, 2),
    Sketcher.Constraint("Tangent", 34, 1, 35, 2),
    Sketcher.Constraint("Coincident", 35, 1, 30, 1),
    Sketcher.Constraint("Coincident", 36, 2, 37, 2),
    Sketcher.Constraint("Coincident", 37, 1, 38, 1),
    Sketcher.Constraint("Coincident", 38, 2, 39, 2),
    Sketcher.Constraint("Tangent", 39, 1, 40, 2),
    Sketcher.Constraint("Tangent", 40, 1, 41, 2),
    Sketcher.Constraint("Coincident", 41, 1, 36, 1),
    Sketcher.Constraint("Coincident", 42, 2, 43, 2),
    Sketcher.Constraint("Coincident", 43, 1, 44, 1),
    Sketcher.Constraint("Coincident", 44, 2, 45, 2),
    Sketcher.Constraint("Tangent", 45, 1, 46, 2),
    Sketcher.Constraint("Tangent", 46, 1, 47, 2),
    Sketcher.Constraint("Coincident", 47, 1, 42, 1),
    Sketcher.Constraint("Coincident", 48, 2, 49, 2),
    Sketcher.Constraint("Coincident", 49, 1, 50, 1),
    Sketcher.Constraint("Coincident", 50, 2, 51, 2),
    Sketcher.Constraint("Tangent", 51, 1, 52, 2),
    Sketcher.Constraint("Tangent", 52, 1, 53, 2),
    Sketcher.Constraint("Coincident", 53, 1, 48, 1),
    Sketcher.Constraint("Equal", 0, 1),
    Sketcher.Constraint("Equal", 1, 2),
    Sketcher.Constraint("Equal", 4, 7),
    Sketcher.Constraint("Equal", 2, 9),
    Sketcher.Constraint("Equal", 9, 10),
    Sketcher.Constraint("Equal", 10, 11),
    Sketcher.Constraint("Equal", 7, 13),
    Sketcher.Constraint("Equal", 11, 15),
    Sketcher.Constraint("Equal", 15, 16),
    Sketcher.Constraint("Equal", 16, 17),
    Sketcher.Constraint("Equal", 13, 19),
    Sketcher.Constraint("Equal", 17, 21),
    Sketcher.Constraint("Equal", 21, 22),
    Sketcher.Constraint("Equal", 22, 23),
    Sketcher.Constraint("Equal", 19, 25),
    Sketcher.Constraint("Equal", 23, 27),
    Sketcher.Constraint("Equal", 27, 28),
    Sketcher.Constraint("Equal", 28, 29),
    Sketcher.Constraint("Equal", 25, 31),
    Sketcher.Constraint("Equal", 29, 33),
    Sketcher.Constraint("Equal", 33, 34),
    Sketcher.Constraint("Equal", 34, 35),
    Sketcher.Constraint("Equal", 31, 37),
    Sketcher.Constraint("Equal", 35, 39),
    Sketcher.Constraint("Equal", 39, 40),
    Sketcher.Constraint("Equal", 40, 41),
    Sketcher.Constraint("Equal", 37, 43),
    Sketcher.Constraint("Equal", 41, 45),
    Sketcher.Constraint("Equal", 45, 46),
    Sketcher.Constraint("Equal", 46, 47),
    Sketcher.Constraint("Equal", 43, 49),
    Sketcher.Constraint("Equal", 47, 51),
    Sketcher.Constraint("Equal", 51, 52),
    Sketcher.Constraint("Equal", 52, 53),
    Sketcher.Constraint("Symmetric", 25, 3, 31, 3, -2),
    Sketcher.Constraint("Symmetric", 27, 3, 33, 3, -2),
    Sketcher.Constraint("Symmetric", 19, 3, 37, 3, -2),
    Sketcher.Constraint("Symmetric", 21, 3, 39, 3, -2),
    Sketcher.Constraint("Symmetric", 13, 3, 43, 3, -2),
    Sketcher.Constraint("Symmetric", 15, 3, 45, 3, -2),
    Sketcher.Constraint("Symmetric", 7, 3, 49, 3, -2),
    Sketcher.Constraint("Symmetric", 9, 3, 51, 3, -2),
    Sketcher.Constraint("Symmetric", 0, 1, 1, 1, -2),
    Sketcher.Constraint("Symmetric", 3, 2, 4, 1, -2),
    Sketcher.Constraint("Horizontal", 2, 3, 0, 1),
    Sketcher.Constraint("Horizontal", 4, 3, 3, 2),
    Sketcher.Constraint("Horizontal", 2, 1, 5, 2),
    Sketcher.Constraint("Horizontal", 25, 1, 30, 2),
    Sketcher.Constraint("Horizontal", 24, 2, 31, 1),
    Sketcher.Constraint("Horizontal", 29, 1, 32, 2),
    Sketcher.Constraint("Horizontal", 28, 1, 33, 1),
    Sketcher.Constraint("Horizontal", 27, 1, 34, 1),
    Sketcher.Constraint("Horizontal", 26, 2, 35, 1),
    Sketcher.Constraint("Horizontal", 19, 1, 36, 2),
    Sketcher.Constraint("Horizontal", 18, 2, 37, 1),
    Sketcher.Constraint("Horizontal", 23, 1, 38, 2),
    Sketcher.Constraint("Horizontal", 22, 1, 39, 1),
    Sketcher.Constraint("Horizontal", 21, 1, 40, 1),
    Sketcher.Constraint("Horizontal", 20, 2, 41, 1),
    Sketcher.Constraint("Horizontal", 13, 1, 42, 2),
    Sketcher.Constraint("Horizontal", 12, 2, 43, 1),
    Sketcher.Constraint("Horizontal", 17, 1, 44, 2),
    Sketcher.Constraint("Horizontal", 16, 1, 45, 1),
    Sketcher.Constraint("Horizontal", 15, 1, 46, 1),
    Sketcher.Constraint("Horizontal", 14, 2, 47, 1),
    Sketcher.Constraint("Horizontal", 7, 1, 48, 2),
    Sketcher.Constraint("Horizontal", 6, 2, 49, 1),
    Sketcher.Constraint("Horizontal", 11, 1, 50, 2),
    Sketcher.Constraint("Horizontal", 10, 1, 51, 1),
    Sketcher.Constraint("Horizontal", 9, 1, 52, 1),
    Sketcher.Constraint("Horizontal", 8, 2, 53, 1),
    Sketcher.Constraint("Equal", 5, 6),
    Sketcher.Constraint("Equal", 6, 8),
    Sketcher.Constraint("Equal", 8, 12),
    Sketcher.Constraint("Equal", 12, 14),
    Sketcher.Constraint("Equal", 14, 18),
    Sketcher.Constraint("Equal", 18, 20),
    Sketcher.Constraint("Equal", 20, 24),
    Sketcher.Constraint("Equal", 24, 26),
    Sketcher.Constraint("Radius", 0, 1.5),
    Sketcher.Constraint("Radius", 4, 0.75),
    Sketcher.Constraint("DistanceY", -1, 1, 4, 3, 17.4),
    Sketcher.Constraint("DistanceY", 19, 3, -1, 1, 8.7),
    Sketcher.Constraint("DistanceY", -1, 1, 0, 3, 9.65),
    Sketcher.Constraint("DistanceY", 21, 3, -1, 1, 4.825),
    Sketcher.Constraint("DistanceX", 9, 3, -1, 1, 6.2029),
    Sketcher.Constraint("DistanceY", -1, 1, 9, 3, 7.392329),
    Sketcher.Constraint("DistanceY", -1, 1, 13, 3, 3.021478),
    Sketcher.Constraint("DistanceX", 25, 3, -1, 1, 5.95115),
    Sketcher.Constraint("DistanceY", 25, 3, -1, 1, 16.350652),
    Sketcher.Constraint("DistanceY", -1, 1, 2, 1, 9.937629),
    Sketcher.Constraint("DistanceX", 7, 1, -1, 1, 10.609971),
    Sketcher.Constraint("DistanceX", 8, 2, -1, 1, 5.260041),
    Sketcher.Constraint("DistanceY", -1, 1, 9, 1, 8.35651),
    Sketcher.Constraint("DistanceX", 11, 1, -1, 1, 7.515528),
    Sketcher.Constraint("DistanceX", 12, 2, -1, 1, 17.265891),
    Sketcher.Constraint("DistanceX", 13, 1, -1, 1, 17.005419),
    Sketcher.Constraint("DistanceY", -1, 1, 14, 2, 3.175451),
    Sketcher.Constraint("DistanceY", -1, 1, 17, 1, 0.275852),
    Sketcher.Constraint("DistanceY", 18, 2, -1, 1, 9.349519),
    Sketcher.Constraint("DistanceY", 19, 1, -1, 1, 8.050481),
    Sketcher.Constraint("DistanceX", 20, 2, -1, 1, 9.342322),
    Sketcher.Constraint("DistanceY", 21, 1, -1, 1, 3.525962),
    Sketcher.Constraint("DistanceY", 22, 1, -1, 1, 6.124038),
    Sketcher.Constraint("DistanceX", 24, 2, -1, 1, 5.246381),
    Sketcher.Constraint("DistanceX", 25, 1, -1, 1, 6.65592),
    Sketcher.Constraint("DistanceX", 26, 2, -1, 1, 4.782252),
    Sketcher.Constraint("DistanceX", 7, 3, -1, 1, 11.184504),
    Sketcher.Constraint("DistanceX", 13, 3, -1, 1, 17.135655),
    Sketcher.Constraint("DistanceX", 19, 3, -1, 1, 15.068842),
    Sketcher.Constraint("DistanceX", 27, 3, -1, 1, 3.300494),
    Sketcher.Constraint("DistanceX", 10, 1, -1, 1, 7.351967),
    Sketcher.Constraint("DistanceX", 15, 1, -1, 1, 9.242923),
    Sketcher.Constraint("DistanceX", 16, 1, -1, 1, 9.763867),
    Sketcher.Constraint("DistanceX", 27, 1, -1, 1, 4.710033),
    Sketcher.Constraint("DistanceX", 28, 1, -1, 1, 1.890955),
])
pocket2 = doc.addObject("PartDesign::Pocket", "Pocket001")
body2.addObject(pocket2)
pocket2.Profile = sketch6
pocket2.Length = 1.1
pocket2.Reversed = True
body3 = doc.addObject("PartDesign::Body", "Body002")

# Sketch on YZ plane
sketch7 = doc.addObject("Sketcher::SketchObject", "Sketch006")
body3.addObject(sketch7)
sketch7.AttachmentSupport = (doc.getObject("YZ_Plane002"), [""])
sketch7.MapMode = "FlatFace"
add_polygon(sketch7, [(29.1, -6.35), (49.1, -6.35), (50.1, -5.873543), (51.1, -6.35), (56.6, -6.35), (58.1, -6.05), (58.1, -4.85), (45.1, -4.85), (45.1, -1.5), (39.1, -1.5), (39.1, 0), (2.1, 0), (2.1, -4.35), (29.1, -4.35)])  # lines 0-13
sketch7.addConstraint([
    Sketcher.Constraint("Horizontal", 0),
    Sketcher.Constraint("Horizontal", 3),
    Sketcher.Constraint("Vertical", 5),
    Sketcher.Constraint("Horizontal", 6),
    Sketcher.Constraint("Vertical", 7),
    Sketcher.Constraint("Horizontal", 8),
    Sketcher.Constraint("Vertical", 9),
    Sketcher.Constraint("Horizontal", 10),
    Sketcher.Constraint("Vertical", 11),
    Sketcher.Constraint("Horizontal", 12),
    Sketcher.Constraint("Vertical", 13),
    Sketcher.Constraint("PointOnObject", 9, 2, -1),
    Sketcher.Constraint("Horizontal", 0, 2, 2, 2),
    Sketcher.Constraint("Equal", 1, 2),
    Sketcher.Constraint("DistanceX", 0, 1, 0, 2, 20.0),
    Sketcher.Constraint("DistanceX", 6, 2, 6, 1, 13.0),
    Sketcher.Constraint("DistanceX", 8, 2, 8, 1, 6.0),
    Sketcher.Constraint("DistanceX", 10, 2, 10, 1, 37.0),
    Sketcher.Constraint("DistanceX", 12, 1, 12, 2, 27.0),
    Sketcher.Constraint("DistanceY", 13, 2, 13, 1, 2.0),
    Sketcher.Constraint("DistanceX", 3, 1, 3, 2, 5.5),
    Sketcher.Constraint("DistanceY", 5, 1, 5, 2, 1.2),
    Sketcher.Constraint("DistanceY", 9, 1, 9, 2, 1.5),
    Sketcher.Constraint("DistanceX", 0, 2, 1, 2, 1.0),
    Sketcher.Constraint("DistanceY", 7, 1, 7, 2, 3.35),
    Sketcher.Constraint("DistanceY", 11, 2, 11, 1, 4.35),
    Sketcher.Constraint("DistanceX", -1, 1, 0, 2, 49.1),
    Sketcher.Constraint("Distance", 1, 1.107705),
])
revolution3 = doc.addObject("PartDesign::Revolution", "Revolution002")
body3.addObject(revolution3)
revolution3.Profile = sketch7
revolution3.ReferenceAxis = (sketch7, ["H_Axis"])
revolution3.Angle = 360
body4 = doc.addObject("PartDesign::Body", "Body003")

# Sketch on YZ plane
sketch8 = doc.addObject("Sketcher::SketchObject", "Sketch007")
body4.addObject(sketch8)
sketch8.AttachmentSupport = (doc.getObject("YZ_Plane003"), [""])
sketch8.MapMode = "FlatFace"
add_polygon(sketch8, [(42.241395, 0), (45.6, -1.280323), (45.6, -4.65), (47.313612, -4.65), (47.313612, -3.173771), (50.313612, -3.173771), (50.313612, -4.65), (55.113612, -4.65), (58.1, -3.75), (58.1, -1.75), (53.9, -1.75), (53.9, 0)])  # lines 0-11
sketch8.addConstraint([
    Sketcher.Constraint("Vertical", 1),
    Sketcher.Constraint("Horizontal", 2),
    Sketcher.Constraint("Vertical", 3),
    Sketcher.Constraint("Horizontal", 4),
    Sketcher.Constraint("Vertical", 5),
    Sketcher.Constraint("Horizontal", 6),
    Sketcher.Constraint("Vertical", 8),
    Sketcher.Constraint("Horizontal", 9),
    Sketcher.Constraint("Vertical", 10),
    Sketcher.Constraint("Horizontal", 11),
    Sketcher.Constraint("PointOnObject", 10, 2, -1),
    Sketcher.Constraint("Horizontal", 2, 2, 5, 2),
    Sketcher.Constraint("DistanceX", 4, 1, 4, 2, 3.0),
    Sketcher.Constraint("DistanceY", 8, 1, 8, 2, 2.0),
    Sketcher.Constraint("DistanceX", 6, 1, 6, 2, 4.8),
    Sketcher.Constraint("DistanceX", 9, 2, 9, 1, 4.2),
    Sketcher.Constraint("DistanceY", 10, 1, 10, 2, 1.75),
    Sketcher.Constraint("DistanceX", -1, 1, 0, 2, 45.6),
    Sketcher.Constraint("DistanceX", -1, 1, 7, 2, 58.1),
    Sketcher.Constraint("DistanceY", 6, 2, 7, 2, 0.9),
    Sketcher.Constraint("DistanceX", 2, 1, 2, 2, 1.713612),
    Sketcher.Constraint("DistanceY", 3, 1, 3, 2, 1.476229),
    Sketcher.Constraint("DistanceX", 11, 2, 11, 1, 11.658605),
    Sketcher.Constraint("DistanceY", 1, 2, 1, 1, 3.369677),
])
revolution4 = doc.addObject("PartDesign::Revolution", "Revolution003")
body4.addObject(revolution4)
revolution4.Profile = sketch8
revolution4.ReferenceAxis = (sketch8, ["H_Axis"])
revolution4.Angle = 360

# Sketch on YZ plane
sketch9 = doc.addObject("Sketcher::SketchObject", "Sketch008")
body4.addObject(sketch9)
sketch9.AttachmentSupport = (doc.getObject("YZ_Plane003"), [""])
sketch9.MapMode = "FlatFace"
add_polygon(sketch9, [(53.9, 1.75), (53.9, -1.75), (61.035227, -1.75), (61.035227, 1.75)])  # lines 0-3
sketch9.addConstraint([
    Sketcher.Constraint("Vertical", 0),
    Sketcher.Constraint("Horizontal", 1),
    Sketcher.Constraint("Vertical", 2),
    Sketcher.Constraint("Horizontal", 3),
    Sketcher.Constraint("DistanceY", 0, 2, 0, 1, 3.5),
    Sketcher.Constraint("DistanceX", -1, 1, 0, 2, 53.9),
    Sketcher.Constraint("DistanceY", 0, 2, -1, 1, 1.75),
    Sketcher.Constraint("DistanceX", 1, 1, 1, 2, 7.135227),
])
pocket3 = doc.addObject("PartDesign::Pocket", "Pocket002")
body4.addObject(pocket3)
pocket3.Profile = sketch9
pocket3.Length = 25
pocket3.Midplane = True

doc.recompute()
